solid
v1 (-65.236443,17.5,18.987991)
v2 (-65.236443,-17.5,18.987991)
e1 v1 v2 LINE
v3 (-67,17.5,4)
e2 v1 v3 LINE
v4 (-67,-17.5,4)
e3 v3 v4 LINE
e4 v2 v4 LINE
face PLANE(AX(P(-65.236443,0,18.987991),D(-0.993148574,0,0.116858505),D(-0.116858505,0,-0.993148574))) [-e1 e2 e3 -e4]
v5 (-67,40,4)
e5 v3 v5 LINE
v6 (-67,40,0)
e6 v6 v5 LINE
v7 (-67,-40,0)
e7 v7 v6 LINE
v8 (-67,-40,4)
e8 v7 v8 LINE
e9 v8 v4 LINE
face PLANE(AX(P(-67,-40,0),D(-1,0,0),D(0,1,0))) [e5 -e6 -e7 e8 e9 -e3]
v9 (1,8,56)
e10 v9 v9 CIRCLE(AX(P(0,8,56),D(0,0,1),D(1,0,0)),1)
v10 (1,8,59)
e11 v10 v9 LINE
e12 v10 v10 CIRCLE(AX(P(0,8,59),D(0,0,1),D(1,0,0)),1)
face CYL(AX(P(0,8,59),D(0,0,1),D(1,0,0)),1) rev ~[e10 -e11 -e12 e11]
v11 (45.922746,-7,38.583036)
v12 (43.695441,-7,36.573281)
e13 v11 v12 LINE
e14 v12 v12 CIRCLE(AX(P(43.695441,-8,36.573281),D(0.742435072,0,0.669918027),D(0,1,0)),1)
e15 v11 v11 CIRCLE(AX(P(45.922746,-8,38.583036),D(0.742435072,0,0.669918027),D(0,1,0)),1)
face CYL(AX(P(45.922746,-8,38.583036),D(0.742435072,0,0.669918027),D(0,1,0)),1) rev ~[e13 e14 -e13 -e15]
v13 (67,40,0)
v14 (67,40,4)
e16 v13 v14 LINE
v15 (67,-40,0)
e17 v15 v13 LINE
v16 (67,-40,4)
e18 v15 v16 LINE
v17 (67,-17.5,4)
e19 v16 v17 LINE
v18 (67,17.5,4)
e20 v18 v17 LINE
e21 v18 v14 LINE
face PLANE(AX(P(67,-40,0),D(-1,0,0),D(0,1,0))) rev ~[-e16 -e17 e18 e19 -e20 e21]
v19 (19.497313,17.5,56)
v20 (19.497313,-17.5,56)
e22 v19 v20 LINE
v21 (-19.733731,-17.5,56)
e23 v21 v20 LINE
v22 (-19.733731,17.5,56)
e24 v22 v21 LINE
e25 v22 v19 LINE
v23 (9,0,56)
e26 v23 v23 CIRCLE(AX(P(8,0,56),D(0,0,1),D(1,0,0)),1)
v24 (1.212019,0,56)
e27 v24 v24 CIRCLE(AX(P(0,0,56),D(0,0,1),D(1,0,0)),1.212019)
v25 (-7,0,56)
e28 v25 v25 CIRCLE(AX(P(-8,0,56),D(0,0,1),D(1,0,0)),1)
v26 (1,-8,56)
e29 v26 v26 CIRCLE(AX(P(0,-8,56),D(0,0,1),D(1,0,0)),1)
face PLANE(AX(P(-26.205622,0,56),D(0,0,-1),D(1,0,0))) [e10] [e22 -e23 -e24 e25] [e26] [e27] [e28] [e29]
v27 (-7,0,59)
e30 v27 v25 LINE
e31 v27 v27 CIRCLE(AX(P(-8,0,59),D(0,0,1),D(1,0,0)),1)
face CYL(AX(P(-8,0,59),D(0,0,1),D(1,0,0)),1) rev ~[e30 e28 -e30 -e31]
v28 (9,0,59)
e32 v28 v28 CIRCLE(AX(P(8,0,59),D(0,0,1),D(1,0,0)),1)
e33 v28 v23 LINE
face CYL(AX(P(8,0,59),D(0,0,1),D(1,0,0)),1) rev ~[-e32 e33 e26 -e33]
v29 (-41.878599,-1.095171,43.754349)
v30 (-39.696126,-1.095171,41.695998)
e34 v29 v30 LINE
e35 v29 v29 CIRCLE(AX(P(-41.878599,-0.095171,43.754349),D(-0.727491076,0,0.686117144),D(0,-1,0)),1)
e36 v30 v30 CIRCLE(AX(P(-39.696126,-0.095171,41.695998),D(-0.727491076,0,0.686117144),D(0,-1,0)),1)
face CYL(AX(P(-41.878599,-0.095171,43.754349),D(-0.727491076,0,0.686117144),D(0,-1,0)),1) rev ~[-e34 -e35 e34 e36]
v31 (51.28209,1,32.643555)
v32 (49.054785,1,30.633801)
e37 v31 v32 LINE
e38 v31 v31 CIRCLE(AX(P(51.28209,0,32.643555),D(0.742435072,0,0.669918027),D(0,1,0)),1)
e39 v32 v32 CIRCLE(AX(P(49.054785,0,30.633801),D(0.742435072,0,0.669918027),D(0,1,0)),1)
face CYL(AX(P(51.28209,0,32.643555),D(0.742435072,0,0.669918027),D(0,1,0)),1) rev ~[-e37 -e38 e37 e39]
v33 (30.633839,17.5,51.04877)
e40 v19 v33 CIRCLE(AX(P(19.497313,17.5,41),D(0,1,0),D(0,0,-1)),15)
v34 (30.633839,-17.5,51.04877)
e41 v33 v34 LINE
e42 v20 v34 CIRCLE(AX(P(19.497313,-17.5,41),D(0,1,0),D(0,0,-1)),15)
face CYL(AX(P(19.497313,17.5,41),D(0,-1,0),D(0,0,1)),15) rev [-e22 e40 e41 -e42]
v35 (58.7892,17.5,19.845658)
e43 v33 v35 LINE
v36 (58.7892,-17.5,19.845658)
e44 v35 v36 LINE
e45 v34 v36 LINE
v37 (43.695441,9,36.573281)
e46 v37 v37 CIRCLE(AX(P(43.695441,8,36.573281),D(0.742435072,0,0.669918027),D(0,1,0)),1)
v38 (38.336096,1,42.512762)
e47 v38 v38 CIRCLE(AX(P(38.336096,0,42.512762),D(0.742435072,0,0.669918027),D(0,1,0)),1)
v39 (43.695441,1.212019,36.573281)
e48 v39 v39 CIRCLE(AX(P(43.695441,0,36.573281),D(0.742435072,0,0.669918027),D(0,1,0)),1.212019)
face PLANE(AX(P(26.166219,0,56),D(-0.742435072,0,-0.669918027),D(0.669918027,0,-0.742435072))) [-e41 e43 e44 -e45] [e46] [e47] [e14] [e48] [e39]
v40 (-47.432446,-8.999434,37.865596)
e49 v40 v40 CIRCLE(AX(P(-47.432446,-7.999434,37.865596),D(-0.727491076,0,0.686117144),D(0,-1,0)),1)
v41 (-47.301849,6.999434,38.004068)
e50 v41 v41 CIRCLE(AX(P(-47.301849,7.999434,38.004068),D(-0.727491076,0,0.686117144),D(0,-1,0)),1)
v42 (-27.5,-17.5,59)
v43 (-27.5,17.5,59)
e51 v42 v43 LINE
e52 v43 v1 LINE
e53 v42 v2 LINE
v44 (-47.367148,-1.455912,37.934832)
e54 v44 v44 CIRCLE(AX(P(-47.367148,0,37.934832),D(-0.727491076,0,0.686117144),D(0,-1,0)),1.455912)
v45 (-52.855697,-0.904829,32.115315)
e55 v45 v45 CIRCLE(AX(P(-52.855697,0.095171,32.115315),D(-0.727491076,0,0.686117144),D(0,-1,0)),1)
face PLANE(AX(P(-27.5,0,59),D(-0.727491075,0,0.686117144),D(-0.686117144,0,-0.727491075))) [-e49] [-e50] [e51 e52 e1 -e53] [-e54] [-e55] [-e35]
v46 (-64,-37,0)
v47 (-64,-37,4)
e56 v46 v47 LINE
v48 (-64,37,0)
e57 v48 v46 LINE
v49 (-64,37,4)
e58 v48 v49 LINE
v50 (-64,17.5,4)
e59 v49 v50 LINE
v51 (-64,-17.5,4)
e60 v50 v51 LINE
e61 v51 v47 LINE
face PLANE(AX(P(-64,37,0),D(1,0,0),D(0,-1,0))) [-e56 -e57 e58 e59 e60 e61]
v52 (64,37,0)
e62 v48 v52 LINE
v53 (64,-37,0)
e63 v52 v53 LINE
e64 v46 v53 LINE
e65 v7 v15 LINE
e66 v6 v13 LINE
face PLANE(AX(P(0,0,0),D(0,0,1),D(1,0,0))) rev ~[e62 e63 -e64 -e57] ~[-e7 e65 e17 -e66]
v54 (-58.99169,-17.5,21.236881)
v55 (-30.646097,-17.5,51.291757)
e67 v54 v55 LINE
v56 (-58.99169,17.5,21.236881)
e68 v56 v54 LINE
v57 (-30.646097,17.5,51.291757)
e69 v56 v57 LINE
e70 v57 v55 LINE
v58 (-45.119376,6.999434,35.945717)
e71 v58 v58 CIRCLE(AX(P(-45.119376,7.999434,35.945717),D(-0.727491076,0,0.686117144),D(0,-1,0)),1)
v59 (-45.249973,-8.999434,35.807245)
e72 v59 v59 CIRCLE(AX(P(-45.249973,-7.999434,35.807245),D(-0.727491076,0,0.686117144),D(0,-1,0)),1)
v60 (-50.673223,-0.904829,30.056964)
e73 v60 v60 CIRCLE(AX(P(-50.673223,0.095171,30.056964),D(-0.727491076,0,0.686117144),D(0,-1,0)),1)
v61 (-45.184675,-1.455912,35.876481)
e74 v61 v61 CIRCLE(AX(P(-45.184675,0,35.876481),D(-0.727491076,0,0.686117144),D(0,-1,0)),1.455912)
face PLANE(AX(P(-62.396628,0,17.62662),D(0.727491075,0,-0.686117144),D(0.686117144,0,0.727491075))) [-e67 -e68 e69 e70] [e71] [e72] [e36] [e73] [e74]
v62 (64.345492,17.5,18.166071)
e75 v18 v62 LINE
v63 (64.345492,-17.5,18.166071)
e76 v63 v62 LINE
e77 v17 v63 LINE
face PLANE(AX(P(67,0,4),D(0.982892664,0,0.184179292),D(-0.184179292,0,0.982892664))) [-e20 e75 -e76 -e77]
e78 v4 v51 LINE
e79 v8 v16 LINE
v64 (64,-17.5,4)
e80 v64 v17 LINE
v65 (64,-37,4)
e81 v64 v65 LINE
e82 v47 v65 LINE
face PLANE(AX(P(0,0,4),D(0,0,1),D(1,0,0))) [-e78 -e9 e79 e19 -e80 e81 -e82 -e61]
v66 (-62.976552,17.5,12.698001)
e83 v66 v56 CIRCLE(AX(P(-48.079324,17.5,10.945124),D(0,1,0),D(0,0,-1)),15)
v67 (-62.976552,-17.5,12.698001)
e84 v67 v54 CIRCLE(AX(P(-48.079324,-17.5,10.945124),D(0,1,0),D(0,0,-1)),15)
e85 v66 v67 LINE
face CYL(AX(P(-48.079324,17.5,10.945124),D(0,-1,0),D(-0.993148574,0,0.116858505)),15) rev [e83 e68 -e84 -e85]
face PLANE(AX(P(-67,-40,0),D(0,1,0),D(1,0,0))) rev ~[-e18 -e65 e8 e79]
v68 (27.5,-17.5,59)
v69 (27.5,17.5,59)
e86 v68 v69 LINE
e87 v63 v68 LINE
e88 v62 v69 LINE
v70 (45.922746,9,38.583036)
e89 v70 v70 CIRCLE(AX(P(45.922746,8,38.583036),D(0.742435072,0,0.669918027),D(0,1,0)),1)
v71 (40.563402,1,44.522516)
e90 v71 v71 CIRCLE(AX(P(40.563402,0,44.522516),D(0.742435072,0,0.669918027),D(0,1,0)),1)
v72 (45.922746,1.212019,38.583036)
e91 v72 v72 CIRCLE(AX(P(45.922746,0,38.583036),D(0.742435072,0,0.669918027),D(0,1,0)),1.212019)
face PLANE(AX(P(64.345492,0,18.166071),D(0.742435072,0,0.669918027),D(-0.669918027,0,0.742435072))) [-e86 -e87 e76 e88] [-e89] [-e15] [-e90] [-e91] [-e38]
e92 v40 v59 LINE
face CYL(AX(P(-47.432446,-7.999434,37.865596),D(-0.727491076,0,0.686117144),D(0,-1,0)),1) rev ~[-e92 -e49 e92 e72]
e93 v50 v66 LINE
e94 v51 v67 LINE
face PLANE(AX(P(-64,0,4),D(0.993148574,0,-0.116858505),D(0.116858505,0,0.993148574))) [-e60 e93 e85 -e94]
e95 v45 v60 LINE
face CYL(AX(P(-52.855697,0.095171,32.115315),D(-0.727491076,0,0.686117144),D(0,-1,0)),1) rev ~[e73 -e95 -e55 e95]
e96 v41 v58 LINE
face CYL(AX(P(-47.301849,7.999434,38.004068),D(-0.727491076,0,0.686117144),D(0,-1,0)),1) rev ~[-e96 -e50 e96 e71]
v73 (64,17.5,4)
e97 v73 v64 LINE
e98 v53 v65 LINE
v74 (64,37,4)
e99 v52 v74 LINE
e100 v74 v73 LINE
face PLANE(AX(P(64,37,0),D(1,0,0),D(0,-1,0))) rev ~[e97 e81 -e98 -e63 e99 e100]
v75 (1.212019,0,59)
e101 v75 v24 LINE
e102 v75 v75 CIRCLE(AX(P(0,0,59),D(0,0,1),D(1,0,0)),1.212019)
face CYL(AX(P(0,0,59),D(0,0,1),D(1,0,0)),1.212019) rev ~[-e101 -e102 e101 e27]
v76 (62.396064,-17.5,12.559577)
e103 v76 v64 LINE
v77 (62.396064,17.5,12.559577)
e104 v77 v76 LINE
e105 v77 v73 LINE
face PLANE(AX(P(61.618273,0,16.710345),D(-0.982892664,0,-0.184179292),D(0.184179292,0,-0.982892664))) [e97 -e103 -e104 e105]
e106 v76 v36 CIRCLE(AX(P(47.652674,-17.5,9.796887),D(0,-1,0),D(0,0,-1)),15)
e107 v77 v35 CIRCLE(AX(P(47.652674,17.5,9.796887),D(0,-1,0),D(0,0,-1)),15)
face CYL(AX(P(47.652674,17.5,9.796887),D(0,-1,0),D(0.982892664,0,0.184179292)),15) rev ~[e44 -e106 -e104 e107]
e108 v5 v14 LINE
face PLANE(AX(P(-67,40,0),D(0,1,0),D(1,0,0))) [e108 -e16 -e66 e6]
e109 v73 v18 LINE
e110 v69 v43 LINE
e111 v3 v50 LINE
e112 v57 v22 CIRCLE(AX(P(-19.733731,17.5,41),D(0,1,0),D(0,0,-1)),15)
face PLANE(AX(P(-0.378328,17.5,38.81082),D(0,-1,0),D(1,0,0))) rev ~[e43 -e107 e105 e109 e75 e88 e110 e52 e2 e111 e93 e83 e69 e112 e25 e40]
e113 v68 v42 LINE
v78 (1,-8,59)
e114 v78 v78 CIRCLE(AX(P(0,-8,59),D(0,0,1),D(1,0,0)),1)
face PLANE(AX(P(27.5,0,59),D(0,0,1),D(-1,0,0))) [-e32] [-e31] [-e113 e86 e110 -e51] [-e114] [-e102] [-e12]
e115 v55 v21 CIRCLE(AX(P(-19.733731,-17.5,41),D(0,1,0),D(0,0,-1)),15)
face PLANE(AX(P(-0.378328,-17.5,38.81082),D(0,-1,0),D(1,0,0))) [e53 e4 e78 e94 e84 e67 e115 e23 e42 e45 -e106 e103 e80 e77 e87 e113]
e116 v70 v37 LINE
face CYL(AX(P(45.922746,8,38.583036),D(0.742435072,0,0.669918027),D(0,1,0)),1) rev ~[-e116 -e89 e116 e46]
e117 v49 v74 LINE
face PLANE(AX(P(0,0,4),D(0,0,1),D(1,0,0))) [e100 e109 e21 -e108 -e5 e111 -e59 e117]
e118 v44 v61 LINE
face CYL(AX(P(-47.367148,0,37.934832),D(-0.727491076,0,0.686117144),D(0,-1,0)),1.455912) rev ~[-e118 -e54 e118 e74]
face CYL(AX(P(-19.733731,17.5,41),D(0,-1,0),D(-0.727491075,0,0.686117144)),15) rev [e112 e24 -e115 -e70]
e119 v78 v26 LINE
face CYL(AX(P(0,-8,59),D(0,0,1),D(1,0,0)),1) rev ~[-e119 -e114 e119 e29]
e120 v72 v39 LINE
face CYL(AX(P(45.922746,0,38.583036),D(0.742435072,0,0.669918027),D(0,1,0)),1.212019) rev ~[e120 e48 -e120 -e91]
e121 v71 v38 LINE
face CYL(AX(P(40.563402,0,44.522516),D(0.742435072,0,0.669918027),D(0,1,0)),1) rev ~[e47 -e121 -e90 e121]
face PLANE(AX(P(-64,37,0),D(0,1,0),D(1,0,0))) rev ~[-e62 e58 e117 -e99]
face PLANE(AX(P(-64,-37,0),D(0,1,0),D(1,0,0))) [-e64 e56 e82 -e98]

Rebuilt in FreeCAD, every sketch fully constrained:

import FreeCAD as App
import Part
import Sketcher

V = App.Vector
Q = App.Units.Quantity


def edges_at(feature, points):
    """Names of the edges that pass closest to the given points."""
    edges = feature.Shape.Edges
    near = lambda p: min(range(len(edges)), key=lambda i: edges[i].distToShape(Part.Vertex(*p))[0])
    return sorted({f"Edge{near(p) + 1}" for p in points})


def add_polygon(sketch, points):
    """Adds a closed chain of lines whose ends are joined by coincident constraints."""
    first, n = sketch.GeometryCount, len(points)
    for a, b in zip(points, points[1:] + points[:1]):
        sketch.addGeometry(Part.LineSegment(App.Vector(*a, 0), App.Vector(*b, 0)), False)
    for i in range(n):
        sketch.addConstraint(Sketcher.Constraint("Coincident", first + i, 2, first + (i + 1) % n, 1))

doc = App.newDocument("Part")
body = doc.addObject("PartDesign::Body", "Body")

# Sketch on XY plane
sketch1 = body.newObject("Sketcher::SketchObject", "Sketch")
sketch1.AttachmentSupport = (doc.getObject("XY_Plane"), [""])
sketch1.MapMode = "FlatFace"
add_polygon(sketch1, [(-67, 40), (-67, -40), (67, -40), (67, 40)])  # lines 0-3
sketch1.addConstraint(Sketcher.Constraint("Vertical", 0))
sketch1.addConstraint(Sketcher.Constraint("Horizontal", 1))
sketch1.addConstraint(Sketcher.Constraint("Vertical", 2))
sketch1.addConstraint(Sketcher.Constraint("Horizontal", 3))
sketch1.addConstraint(Sketcher.Constraint("Symmetric", 0, 2, 2, 2, -1, 1))
sketch1.addConstraint(Sketcher.Constraint("DistanceX", 1, 1, 1, 2, Q("134 mm")))
sketch1.addConstraint(Sketcher.Constraint("DistanceY", 0, 2, 0, 1, Q("80 mm")))
pad1 = body.newObject("PartDesign::Pad", "Pad")
pad1.Profile = sketch1
pad1.Length = 4

# Sketch on XY plane
sketch2 = body.newObject("Sketcher::SketchObject", "Sketch001")
sketch2.AttachmentSupport = (doc.getObject("XY_Plane"), [""])
sketch2.MapMode = "FlatFace"
add_polygon(sketch2, [(-64, -37), (-64, 37), (64, 37), (64, -37)])  # lines 0-3
sketch2.addConstraint(Sketcher.Constraint("Vertical", 0))
sketch2.addConstraint(Sketcher.Constraint("Horizontal", 1))
sketch2.addConstraint(Sketcher.Constraint("Vertical", 2))
sketch2.addConstraint(Sketcher.Constraint("Horizontal", 3))
sketch2.addConstraint(Sketcher.Constraint("Symmetric", 0, 2, 2, 2, -1, 1))
sketch2.addConstraint(Sketcher.Constraint("DistanceX", 1, 1, 1, 2, Q("128 mm")))
sketch2.addConstraint(Sketcher.Constraint("DistanceY", 0, 1, 0, 2, Q("74 mm")))
pocket1 = body.newObject("PartDesign::Pocket", "Pocket")
pocket1.Profile = sketch2
pocket1.Type = "ThroughAll"
pocket1.Midplane = True

# Sketch on XZ plane
sketch3 = body.newObject("Sketcher::SketchObject", "Sketch002")
sketch3.AttachmentSupport = (doc.getObject("XZ_Plane"), [""])
sketch3.MapMode = "FlatFace"
add_polygon(sketch3, [(-27.5, 59), (-65.236443, 18.987991), (-67, 4), (-64, 4), (-62.396628, 17.62662), (-26.205622, 56), (26.166219, 56), (61.618273, 16.710345), (64, 4), (67, 4), (64.345492, 18.166071), (27.5, 59)])  # lines 0-11
sketch3.addConstraint(Sketcher.Constraint("Horizontal", 2))
sketch3.addConstraint(Sketcher.Constraint("Horizontal", 5))
sketch3.addConstraint(Sketcher.Constraint("Horizontal", 8))
sketch3.addConstraint(Sketcher.Constraint("Horizontal", 11))
sketch3.addConstraint(Sketcher.Constraint("Symmetric", 2, 2, 7, 2, -2))
sketch3.addConstraint(Sketcher.Constraint("Parallel", 1, 3))
sketch3.addConstraint(Sketcher.Constraint("Parallel", 0, 4))
sketch3.addConstraint(Sketcher.Constraint("Parallel", 7, 9))
sketch3.addConstraint(Sketcher.Constraint("Parallel", 6, 10))
sketch3.addConstraint(Sketcher.Constraint("Equal", 2, 8))
sketch3.addConstraint(Sketcher.Constraint("Equal", 0, 10))
sketch3.addConstraint(Sketcher.Constraint("DistanceX", 2, 1, 2, 2, Q("3 mm")))
sketch3.addConstraint(Sketcher.Constraint("DistanceX", 11, 2, 11, 1, Q("55 mm")))
sketch3.addConstraint(Sketcher.Constraint("Distance", 0, Q("55 mm")))
sketch3.addConstraint(Sketcher.Constraint("DistanceX", 1, 2, -1, 1, Q("67 mm")))
sketch3.addConstraint(Sketcher.Constraint("DistanceY", -1, 1, 1, 2, Q("4 mm")))
sketch3.addConstraint(Sketcher.Constraint("DistanceY", -1, 1, 4, 2, Q("56 mm")))
sketch3.addConstraint(Sketcher.Constraint("DistanceY", -1, 1, 10, 2, Q("59 mm")))
sketch3.addConstraint(Sketcher.Constraint("DistanceX", -1, 1, 10, 2, Q("27.5 mm")))
sketch3.addConstraint(Sketcher.Constraint("DistanceX", 5, 1, 5, 2, Q("52.371841 mm")))
sketch3.addConstraint(Sketcher.Constraint("DistanceX", 3, 2, 6, 2, Q("124.014901 mm")))
sketch3.addConstraint(Sketcher.Constraint("Distance", 1, Q("15.091388 mm")))
sketch3.addConstraint(Sketcher.Constraint("Distance", 4, Q("52.747562 mm")))
pad2 = body.newObject("PartDesign::Pad", "Pad001")
pad2.Profile = sketch3
pad2.Length = 35
pad2.Midplane = True

# Sketch on XY plane
sketch4 = body.newObject("Sketcher::SketchObject", "Sketch003")
sketch4.AttachmentSupport = (doc.getObject("XY_Plane"), [""])
sketch4.MapMode = "FlatFace"
sketch4.AttachmentOffset = App.Placement(V(0, 0, 59), App.Rotation())
sketch4.addGeometry(Part.Circle(V(0, 0, 0), V(0, 0, 1), 1.212019), False)
sketch4.addGeometry(Part.Circle(V(-8, 0, 0), V(0, 0, 1), 1), False)
sketch4.addGeometry(Part.Circle(V(0, -8, 0), V(0, 0, 1), 1), False)
sketch4.addGeometry(Part.Circle(V(8, 0, 0), V(0, 0, 1), 1), False)
sketch4.addGeometry(Part.Circle(V(0, 8, 0), V(0, 0, 1), 1), False)
sketch4.addConstraint(Sketcher.Constraint("Coincident", 0, 3, -1, 1))
sketch4.addConstraint(Sketcher.Constraint("Equal", 1, 2))
sketch4.addConstraint(Sketcher.Constraint("Equal", 2, 3))
sketch4.addConstraint(Sketcher.Constraint("Equal", 3, 4))
sketch4.addConstraint(Sketcher.Constraint("Symmetric", 1, 3, 3, 3, -1, 1))
sketch4.addConstraint(Sketcher.Constraint("Symmetric", 2, 3, 4, 3, -1, 1))
sketch4.addConstraint(Sketcher.Constraint("PointOnObject", 1, 3, -1))
sketch4.addConstraint(Sketcher.Constraint("PointOnObject", 2, 3, -2))
sketch4.addConstraint(Sketcher.Constraint("Diameter", 1, Q("2 mm")))
sketch4.addConstraint(Sketcher.Constraint("DistanceX", 1, 3, -1, 1, Q("8 mm")))
sketch4.addConstraint(Sketcher.Constraint("DistanceY", 2, 3, -1, 1, Q("8 mm")))
sketch4.addConstraint(Sketcher.Constraint("Diameter", 0, Q("2.424038 mm")))
pocket2 = body.newObject("PartDesign::Pocket", "Pocket001")
pocket2.Profile = sketch4
pocket2.Length = 25

# Sketch on an angled plane
sketch5 = body.newObject("Sketcher::SketchObject", "Sketch004")
sketch5.Placement = App.Placement(V(-44.003692, 0, 41.50111), App.Rotation(V(0, -1, 0), V(0.686117144, 0, 0.727491076), V(-0.727491076, 0, 0.686117144), "ZXY"))
sketch5.addGeometry(Part.Circle(V(0, -4.90216, 0), V(0, 0, 1), 1.455912), False)
sketch5.addGeometry(Part.Circle(V(-7.999434, -4.806989, 0), V(0, 0, 1), 1), False)
sketch5.addGeometry(Part.Circle(V(-0.095171, -12.901594, 0), V(0, 0, 1), 1), False)
sketch5.addGeometry(Part.Circle(V(7.999434, -4.997331, 0), V(0, 0, 1), 1), False)
sketch5.addGeometry(Part.Circle(V(0.095171, 3.097274, 0), V(0, 0, 1), 1), False)
sketch5.addConstraint(Sketcher.Constraint("Equal", 1, 2))
sketch5.addConstraint(Sketcher.Constraint("Equal", 2, 3))
sketch5.addConstraint(Sketcher.Constraint("Equal", 3, 4))
sketch5.addConstraint(Sketcher.Constraint("PointOnObject", 0, 3, -2))
sketch5.addConstraint(Sketcher.Constraint("Diameter", 1, Q("2 mm")))
sketch5.addConstraint(Sketcher.Constraint("Diameter", 0, Q("2.911825 mm")))
sketch5.addConstraint(Sketcher.Constraint("DistanceY", 0, 3, -1, 1, Q("4.90216 mm")))
sketch5.addConstraint(Sketcher.Constraint("DistanceY", 1, 3, -1, 1, Q("4.806989 mm")))
sketch5.addConstraint(Sketcher.Constraint("DistanceX", 2, 3, -1, 1, Q("0.095171 mm")))
sketch5.addConstraint(Sketcher.Constraint("DistanceY", 3, 3, -1, 1, Q("4.997331 mm")))
sketch5.addConstraint(Sketcher.Constraint("DistanceX", -1, 1, 4, 3, Q("0.095171 mm")))
sketch5.addConstraint(Sketcher.Constraint("DistanceX", 1, 3, -1, 1, Q("7.999434 mm")))
sketch5.addConstraint(Sketcher.Constraint("DistanceY", 2, 3, -1, 1, Q("12.901594 mm")))
sketch5.addConstraint(Sketcher.Constraint("DistanceX", -1, 1, 3, 3, Q("7.999434 mm")))
sketch5.addConstraint(Sketcher.Constraint("DistanceY", -1, 1, 4, 3, Q("3.097274 mm")))
pocket3 = body.newObject("PartDesign::Pocket", "Pocket002")
pocket3.Profile = sketch5
pocket3.Length = 25

# Sketch on an angled plane
sketch6 = body.newObject("Sketcher::SketchObject", "Sketch005")
sketch6.Placement = App.Placement(V(44.503138, 0, 40.156312), App.Rotation(V(0, 1, 0), V(-0.669918027, 0, 0.742435072), V(0.742435072, 0, 0.669918027), "ZXY"))
sketch6.addGeometry(Part.Circle(V(0, -2.119076, 0), V(0, 0, 1), 1.212019), False)
sketch6.addGeometry(Part.Circle(V(-8, -2.119076, 0), V(0, 0, 1), 1), False)
sketch6.addGeometry(Part.Circle(V(0, -10.119076, 0), V(0, 0, 1), 1), False)
sketch6.addGeometry(Part.Circle(V(8, -2.119076, 0), V(0, 0, 1), 1), False)
sketch6.addGeometry(Part.Circle(V(0, 5.880924, 0), V(0, 0, 1), 1), False)
sketch6.addConstraint(Sketcher.Constraint("Equal", 1, 2))
sketch6.addConstraint(Sketcher.Constraint("Equal", 2, 3))
sketch6.addConstraint(Sketcher.Constraint("Equal", 3, 4))
sketch6.addConstraint(Sketcher.Constraint("Symmetric", 1, 3, 3, 3, -2))
sketch6.addConstraint(Sketcher.Constraint("PointOnObject", 0, 3, -2))
sketch6.addConstraint(Sketcher.Constraint("PointOnObject", 2, 3, -2))
sketch6.addConstraint(Sketcher.Constraint("PointOnObject", 4, 3, -2))
sketch6.addConstraint(Sketcher.Constraint("Horizontal", 0, 3, 1, 3))
sketch6.addConstraint(Sketcher.Constraint("Diameter", 1, Q("2 mm")))
sketch6.addConstraint(Sketcher.Constraint("DistanceX", 1, 3, -1, 1, Q("8 mm")))
sketch6.addConstraint(Sketcher.Constraint("DistanceY", 2, 3, 0, 3, Q("8 mm")))
sketch6.addConstraint(Sketcher.Constraint("DistanceY", 0, 3, 4, 3, Q("8 mm")))
sketch6.addConstraint(Sketcher.Constraint("Diameter", 0, Q("2.424038 mm")))
sketch6.addConstraint(Sketcher.Constraint("DistanceY", 0, 3, -1, 1, Q("2.119076 mm")))
pocket4 = body.newObject("PartDesign::Pocket", "Pocket003")
pocket4.Profile = sketch6
pocket4.Length = 25
doc.recompute()

fillet = body.newObject("PartDesign::Fillet", "Fillet")
fillet.Base = (pocket4, edges_at(pocket4, [
    (26.166, 0, 56),
    (-26.206, 0, 56),
    (61.618, 0, 16.71),
    (-62.397, 0, 17.627),
]))
fillet.Radius = 15

doc.recompute()
